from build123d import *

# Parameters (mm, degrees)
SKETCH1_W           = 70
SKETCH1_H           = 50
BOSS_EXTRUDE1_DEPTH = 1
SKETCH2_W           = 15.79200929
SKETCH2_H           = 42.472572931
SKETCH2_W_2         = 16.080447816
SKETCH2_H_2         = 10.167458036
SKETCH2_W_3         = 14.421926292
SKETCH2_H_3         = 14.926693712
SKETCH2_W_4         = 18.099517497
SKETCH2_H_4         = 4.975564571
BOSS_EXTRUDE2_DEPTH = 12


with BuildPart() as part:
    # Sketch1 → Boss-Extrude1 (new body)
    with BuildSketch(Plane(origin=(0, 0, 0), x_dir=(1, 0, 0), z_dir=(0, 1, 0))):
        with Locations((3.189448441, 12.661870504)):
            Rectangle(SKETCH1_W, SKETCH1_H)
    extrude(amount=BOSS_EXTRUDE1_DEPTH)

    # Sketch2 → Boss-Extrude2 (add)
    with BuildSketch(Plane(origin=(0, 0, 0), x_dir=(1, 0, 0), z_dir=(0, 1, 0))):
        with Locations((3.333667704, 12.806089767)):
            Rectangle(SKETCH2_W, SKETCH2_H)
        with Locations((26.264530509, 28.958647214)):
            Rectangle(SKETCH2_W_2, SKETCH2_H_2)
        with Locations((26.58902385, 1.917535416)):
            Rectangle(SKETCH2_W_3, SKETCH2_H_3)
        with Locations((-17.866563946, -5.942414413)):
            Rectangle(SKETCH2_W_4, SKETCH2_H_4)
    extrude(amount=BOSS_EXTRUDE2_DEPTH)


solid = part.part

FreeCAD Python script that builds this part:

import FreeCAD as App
import Part
import Sketcher

V = App.Vector
Q = App.Units.Quantity


def add_polygon(sketch, points):
    """Adds a closed chain of lines whose ends are joined by coincident constraints."""
    first, n = sketch.GeometryCount, len(points)
    for a, b in zip(points, points[1:] + points[:1]):
        sketch.addGeometry(Part.LineSegment(App.Vector(*a, 0), App.Vector(*b, 0)), False)
    for i in range(n):
        sketch.addConstraint(Sketcher.Constraint("Coincident", first + i, 2, first + (i + 1) % n, 1))

doc = App.newDocument("Part")
params = doc.addObject("Spreadsheet::Sheet", "Params")
for row, (alias, value) in enumerate([
    ("sketch1_width", "70 mm"),
    ("sketch1_height", "50 mm"),
    ("pad1_length", "1 mm"),
    ("pad2_length", "12 mm"),
], start=1):
    params.set(f"A{row}", alias)
    params.set(f"B{row}", "=" + value)
    params.setAlias(f"B{row}", alias)

body = doc.addObject("PartDesign::Body", "Body")

# Sketch on XZ plane
sketch1 = body.newObject("Sketcher::SketchObject", "Sketch")
sketch1.AttachmentSupport = (doc.getObject("XZ_Plane"), [""])
sketch1.MapMode = "FlatFace"
add_polygon(sketch1, [(-31.810552, -37.661871), (-31.810552, 12.338129), (38.189448, 12.338129), (38.189448, -37.661871)])  # lines 0-3
sketch1.addConstraint([
    Sketcher.Constraint("Vertical", 0),
    Sketcher.Constraint("Horizontal", 1),
    Sketcher.Constraint("Vertical", 2),
    Sketcher.Constraint("Horizontal", 3),
    Sketcher.Constraint("DistanceX", 1, 1, 1, 2, Q("70 mm")),
    Sketcher.Constraint("DistanceY", 0, 1, 0, 2, Q("50 mm")),
    Sketcher.Constraint("DistanceX", 0, 2, -1, 1, Q("31.810552 mm")),
    Sketcher.Constraint("DistanceY", -1, 1, 0, 2, Q("12.338129 mm")),
])
sketch1.setExpression("Constraints[8]", "Params.sketch1_width")
sketch1.setExpression("Constraints[9]", "Params.sketch1_height")
pad1 = body.newObject("PartDesign::Pad", "Pad")
pad1.Profile = sketch1
pad1.setExpression("Length", "Params.pad1_length")
pad1.Reversed = True

# Sketch on XZ plane
sketch2 = body.newObject("Sketcher::SketchObject", "Sketch001")
sketch2.AttachmentSupport = (doc.getObject("XZ_Plane"), [""])
sketch2.MapMode = "FlatFace"
add_polygon(sketch2, [(-4.562337, -34.042376), (-4.562337, 8.430197), (11.229672, 8.430197), (11.229672, -34.042376)])  # lines 0-3
add_polygon(sketch2, [(18.224307, -34.042376), (18.224307, -23.874918), (34.304754, -23.874918), (34.304754, -34.042376)])  # lines 4-7
add_polygon(sketch2, [(19.378061, -9.380882), (19.378061, 5.545811), (33.799987, 5.545811), (33.799987, -9.380882)])  # lines 8-11
add_polygon(sketch2, [(-26.916323, 3.454632), (-26.916323, 8.430197), (-8.816805, 8.430197), (-8.816805, 3.454632)])  # lines 12-15
sketch2.addConstraint([
    Sketcher.Constraint("Vertical", 0),
    Sketcher.Constraint("Horizontal", 1),
    Sketcher.Constraint("Vertical", 2),
    Sketcher.Constraint("Horizontal", 3),
    Sketcher.Constraint("Vertical", 4),
    Sketcher.Constraint("Horizontal", 5),
    Sketcher.Constraint("Vertical", 6),
    Sketcher.Constraint("Horizontal", 7),
    Sketcher.Constraint("Vertical", 8),
    Sketcher.Constraint("Horizontal", 9),
    Sketcher.Constraint("Vertical", 10),
    Sketcher.Constraint("Horizontal", 11),
    Sketcher.Constraint("Vertical", 12),
    Sketcher.Constraint("Horizontal", 13),
    Sketcher.Constraint("Vertical", 14),
    Sketcher.Constraint("Horizontal", 15),
    Sketcher.Constraint("Horizontal", 3, 2, 6, 2),
    Sketcher.Constraint("Horizontal", 1, 2, 12, 2),
    Sketcher.Constraint("DistanceX", 1, 1, 1, 2, Q("15.792009 mm")),
    Sketcher.Constraint("DistanceY", 4, 1, 4, 2, Q("10.167458 mm")),
    Sketcher.Constraint("DistanceX", 5, 1, 5, 2, Q("16.080448 mm")),
    Sketcher.Constraint("DistanceX", 9, 1, 9, 2, Q("14.421926 mm")),
    Sketcher.Constraint("DistanceX", 13, 1, 13, 2, Q("18.099517 mm")),
    Sketcher.Constraint("DistanceY", 0, 1, 0, 2, Q("42.472573 mm")),
    Sketcher.Constraint("DistanceY", 8, 1, 8, 2, Q("14.926694 mm")),
    Sketcher.Constraint("DistanceY", 12, 1, 12, 2, Q("4.975565 mm")),
    Sketcher.Constraint("DistanceY", 4, 2, -1, 1, Q("23.874918 mm")),
    Sketcher.Constraint("DistanceX", -1, 1, 8, 2, Q("19.378061 mm")),
    Sketcher.Constraint("DistanceY", -1, 1, 8, 2, Q("5.545811 mm")),
    Sketcher.Constraint("DistanceX", 3, 2, 5, 2, Q("38.867091 mm")),
    Sketcher.Constraint("DistanceX", 1, 2, 8, 2, Q("8.148388 mm")),
    Sketcher.Constraint("DistanceX", 13, 2, 0, 2, Q("4.254468 mm")),
])
pad2 = body.newObject("PartDesign::Pad", "Pad001")
pad2.Profile = sketch2
pad2.setExpression("Length", "Params.pad2_length")
pad2.Reversed = True

doc.recompute()
